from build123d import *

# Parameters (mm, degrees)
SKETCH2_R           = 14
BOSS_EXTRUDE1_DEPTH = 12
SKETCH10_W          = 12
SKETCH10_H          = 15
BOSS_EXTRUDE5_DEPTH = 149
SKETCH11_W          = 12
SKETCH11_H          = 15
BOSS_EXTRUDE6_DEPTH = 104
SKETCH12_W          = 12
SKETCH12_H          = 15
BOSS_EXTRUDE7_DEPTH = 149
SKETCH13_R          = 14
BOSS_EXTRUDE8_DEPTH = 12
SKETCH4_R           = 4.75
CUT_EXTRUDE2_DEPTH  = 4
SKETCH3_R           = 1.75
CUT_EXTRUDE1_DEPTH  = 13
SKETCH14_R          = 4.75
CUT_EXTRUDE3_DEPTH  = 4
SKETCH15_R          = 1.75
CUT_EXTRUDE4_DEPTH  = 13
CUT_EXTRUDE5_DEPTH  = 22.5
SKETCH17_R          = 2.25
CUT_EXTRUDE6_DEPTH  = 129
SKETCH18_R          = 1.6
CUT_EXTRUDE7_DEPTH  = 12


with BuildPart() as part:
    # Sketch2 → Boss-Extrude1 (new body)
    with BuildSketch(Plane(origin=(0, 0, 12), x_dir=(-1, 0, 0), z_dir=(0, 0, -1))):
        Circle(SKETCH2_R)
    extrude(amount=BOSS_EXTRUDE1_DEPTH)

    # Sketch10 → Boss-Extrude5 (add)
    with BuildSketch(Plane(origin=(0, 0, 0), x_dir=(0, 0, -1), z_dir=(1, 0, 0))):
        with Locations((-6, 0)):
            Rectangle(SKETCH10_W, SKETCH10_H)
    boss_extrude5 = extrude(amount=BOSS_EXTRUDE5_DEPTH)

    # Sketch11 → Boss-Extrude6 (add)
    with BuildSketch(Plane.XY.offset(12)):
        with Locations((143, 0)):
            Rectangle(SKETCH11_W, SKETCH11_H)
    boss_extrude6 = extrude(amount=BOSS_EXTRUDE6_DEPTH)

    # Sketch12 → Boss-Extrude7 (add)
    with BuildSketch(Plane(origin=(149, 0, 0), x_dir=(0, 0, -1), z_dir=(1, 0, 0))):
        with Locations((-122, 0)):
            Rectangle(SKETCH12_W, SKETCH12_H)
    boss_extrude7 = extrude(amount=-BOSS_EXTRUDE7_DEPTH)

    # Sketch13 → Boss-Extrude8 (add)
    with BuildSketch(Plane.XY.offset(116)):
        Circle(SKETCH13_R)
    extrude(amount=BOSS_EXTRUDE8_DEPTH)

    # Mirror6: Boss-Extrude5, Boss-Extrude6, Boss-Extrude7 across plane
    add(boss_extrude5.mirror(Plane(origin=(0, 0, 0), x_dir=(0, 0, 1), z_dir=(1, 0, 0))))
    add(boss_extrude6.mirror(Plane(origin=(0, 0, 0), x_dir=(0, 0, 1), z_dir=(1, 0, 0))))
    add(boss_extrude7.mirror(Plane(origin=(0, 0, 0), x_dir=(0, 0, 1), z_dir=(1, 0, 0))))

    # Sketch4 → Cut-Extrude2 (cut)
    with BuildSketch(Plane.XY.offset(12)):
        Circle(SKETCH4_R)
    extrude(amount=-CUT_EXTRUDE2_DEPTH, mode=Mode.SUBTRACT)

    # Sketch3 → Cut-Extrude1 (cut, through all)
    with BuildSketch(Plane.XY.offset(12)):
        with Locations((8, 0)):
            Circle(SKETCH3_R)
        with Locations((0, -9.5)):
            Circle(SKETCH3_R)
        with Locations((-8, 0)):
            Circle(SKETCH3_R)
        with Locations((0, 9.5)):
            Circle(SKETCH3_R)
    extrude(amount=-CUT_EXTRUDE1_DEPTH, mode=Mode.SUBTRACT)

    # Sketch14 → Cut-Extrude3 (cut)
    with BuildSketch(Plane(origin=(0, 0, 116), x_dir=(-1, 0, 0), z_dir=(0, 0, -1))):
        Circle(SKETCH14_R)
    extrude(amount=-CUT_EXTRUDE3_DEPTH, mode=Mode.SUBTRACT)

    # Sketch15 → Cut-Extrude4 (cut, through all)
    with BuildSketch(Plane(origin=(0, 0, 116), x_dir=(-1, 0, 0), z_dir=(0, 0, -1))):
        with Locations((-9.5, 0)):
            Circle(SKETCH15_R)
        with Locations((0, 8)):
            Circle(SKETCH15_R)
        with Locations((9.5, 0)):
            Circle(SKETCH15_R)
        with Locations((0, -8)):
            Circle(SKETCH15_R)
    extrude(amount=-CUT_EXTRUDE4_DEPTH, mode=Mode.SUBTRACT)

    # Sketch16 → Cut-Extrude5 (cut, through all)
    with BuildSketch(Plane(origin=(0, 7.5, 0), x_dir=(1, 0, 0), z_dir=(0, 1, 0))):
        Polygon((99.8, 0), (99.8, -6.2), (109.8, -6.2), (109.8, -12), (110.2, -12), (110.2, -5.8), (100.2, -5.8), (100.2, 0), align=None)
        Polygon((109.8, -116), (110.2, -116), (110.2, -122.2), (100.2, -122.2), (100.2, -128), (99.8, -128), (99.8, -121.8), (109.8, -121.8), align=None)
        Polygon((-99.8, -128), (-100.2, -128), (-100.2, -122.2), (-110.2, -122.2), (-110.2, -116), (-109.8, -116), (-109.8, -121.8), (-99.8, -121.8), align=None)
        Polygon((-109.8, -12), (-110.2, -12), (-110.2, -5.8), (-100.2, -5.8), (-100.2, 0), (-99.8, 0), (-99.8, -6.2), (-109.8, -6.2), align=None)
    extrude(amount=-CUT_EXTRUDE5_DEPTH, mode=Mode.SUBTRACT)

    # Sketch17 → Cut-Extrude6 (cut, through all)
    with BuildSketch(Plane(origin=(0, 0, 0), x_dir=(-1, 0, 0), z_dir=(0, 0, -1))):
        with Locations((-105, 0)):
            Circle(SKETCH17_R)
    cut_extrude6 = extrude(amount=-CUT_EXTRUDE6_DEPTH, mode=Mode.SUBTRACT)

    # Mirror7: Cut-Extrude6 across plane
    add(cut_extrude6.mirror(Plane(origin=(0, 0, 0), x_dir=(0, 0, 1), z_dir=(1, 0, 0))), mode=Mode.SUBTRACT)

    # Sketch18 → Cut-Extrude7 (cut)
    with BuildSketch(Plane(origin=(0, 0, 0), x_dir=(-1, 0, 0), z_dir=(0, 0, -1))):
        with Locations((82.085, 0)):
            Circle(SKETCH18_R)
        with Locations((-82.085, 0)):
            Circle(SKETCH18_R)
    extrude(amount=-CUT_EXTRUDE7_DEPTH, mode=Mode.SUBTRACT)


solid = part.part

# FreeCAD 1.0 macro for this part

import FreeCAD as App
import Part
import Sketcher

V = App.Vector

doc = App.newDocument("Part")
body = doc.addObject("PartDesign::Body", "Body")
body.AllowCompound = True

sketch1 = body.newObject("Sketcher::SketchObject", "Sketch")
sketch1.AttachmentSupport = (doc.getObject("XY_Plane"), [""])
sketch1.MapMode = "FlatFace"
sketch1.AttachmentOffset = App.Placement(V(0, 0, 12), App.Rotation())
sketch1.addGeometry(Part.Circle(V(0, 0, 0), V(0, 0, 1), 14), False)
sketch1.addConstraint(Sketcher.Constraint("Coincident", 0, 3, -1, 1))
sketch1.addConstraint(Sketcher.Constraint("Diameter", 0, 28.0))
pad1 = body.newObject("PartDesign::Pad", "Pad")
pad1.Profile = sketch1
pad1.Length = 12
pad1.Reversed = True

sketch2 = body.newObject("Sketcher::SketchObject", "Sketch001")
sketch2.AttachmentSupport = (doc.getObject("YZ_Plane"), [""])
sketch2.MapMode = "FlatFace"
sketch2.addGeometry(Part.LineSegment(V(8, 12, 0), V(-8, 12, 0)), False)
sketch2.addGeometry(Part.LineSegment(V(-8, 12, 0), V(-8, 0, 0)), False)
sketch2.addGeometry(Part.LineSegment(V(-8, 0, 0), V(8, 0, 0)), False)
sketch2.addGeometry(Part.LineSegment(V(8, 0, 0), V(8, 12, 0)), False)
sketch2.addConstraint(Sketcher.Constraint("Coincident", 0, 2, 1, 1))
sketch2.addConstraint(Sketcher.Constraint("Coincident", 1, 2, 2, 1))
sketch2.addConstraint(Sketcher.Constraint("Coincident", 2, 2, 3, 1))
sketch2.addConstraint(Sketcher.Constraint("Coincident", 3, 2, 0, 1))
sketch2.addConstraint(Sketcher.Constraint("Horizontal", 0))
sketch2.addConstraint(Sketcher.Constraint("Vertical", 1))
sketch2.addConstraint(Sketcher.Constraint("Horizontal", 2))
sketch2.addConstraint(Sketcher.Constraint("Vertical", 3))
sketch2.addConstraint(Sketcher.Constraint("Symmetric", 1, 2, 2, 2, -1, 1))
sketch2.addConstraint(Sketcher.Constraint("DistanceX", 0, 2, 0, 1, 15.0))
sketch2.addConstraint(Sketcher.Constraint("DistanceY", 1, 2, 1, 1, 12.0))
pad2 = body.newObject("PartDesign::Pad", "Pad001")
pad2.Profile = sketch2
pad2.Length = 149

sketch3 = body.newObject("Sketcher::SketchObject", "Sketch002")
sketch3.AttachmentSupport = (doc.getObject("XY_Plane"), [""])
sketch3.MapMode = "FlatFace"
sketch3.AttachmentOffset = App.Placement(V(0, 0, 12), App.Rotation())
sketch3.addGeometry(Part.LineSegment(V(137, 8, 0), V(137, -8, 0)), False)
sketch3.addGeometry(Part.LineSegment(V(137, -8, 0), V(149, -8, 0)), False)
sketch3.addGeometry(Part.LineSegment(V(149, -8, 0), V(149, 8, 0)), False)
sketch3.addGeometry(Part.LineSegment(V(149, 8, 0), V(137, 8, 0)), False)
sketch3.addConstraint(Sketcher.Constraint("Coincident", 0, 2, 1, 1))
sketch3.addConstraint(Sketcher.Constraint("Coincident", 1, 2, 2, 1))
sketch3.addConstraint(Sketcher.Constraint("Coincident", 2, 2, 3, 1))
sketch3.addConstraint(Sketcher.Constraint("Coincident", 3, 2, 0, 1))
sketch3.addConstraint(Sketcher.Constraint("Vertical", 0))
sketch3.addConstraint(Sketcher.Constraint("Horizontal", 1))
sketch3.addConstraint(Sketcher.Constraint("Vertical", 2))
sketch3.addConstraint(Sketcher.Constraint("Horizontal", 3))
sketch3.addConstraint(Sketcher.Constraint("DistanceX", 1, 1, 1, 2, 12.0))
sketch3.addConstraint(Sketcher.Constraint("DistanceY", 0, 2, 0, 1, 15.0))
sketch3.addConstraint(Sketcher.Constraint("DistanceX", -1, 1, 0, 2, 137.0))
sketch3.addConstraint(Sketcher.Constraint("DistanceY", 0, 2, -1, 1, 7.5))
pad3 = body.newObject("PartDesign::Pad", "Pad002")
pad3.Profile = sketch3
pad3.Length = 104

sketch4 = body.newObject("Sketcher::SketchObject", "Sketch003")
sketch4.AttachmentSupport = (doc.getObject("YZ_Plane"), [""])
sketch4.MapMode = "FlatFace"
sketch4.AttachmentOffset = App.Placement(V(0, 0, 149), App.Rotation())
sketch4.addGeometry(Part.LineSegment(V(8, 128, 0), V(-8, 128, 0)), False)
sketch4.addGeometry(Part.LineSegment(V(-8, 128, 0), V(-8, 116, 0)), False)
sketch4.addGeometry(Part.LineSegment(V(-8, 116, 0), V(8, 116, 0)), False)
sketch4.addGeometry(Part.LineSegment(V(8, 116, 0), V(8, 128, 0)), False)
sketch4.addConstraint(Sketcher.Constraint("Coincident", 0, 2, 1, 1))
sketch4.addConstraint(Sketcher.Constraint("Coincident", 1, 2, 2, 1))
sketch4.addConstraint(Sketcher.Constraint("Coincident", 2, 2, 3, 1))
sketch4.addConstraint(Sketcher.Constraint("Coincident", 3, 2, 0, 1))
sketch4.addConstraint(Sketcher.Constraint("Horizontal", 0))
sketch4.addConstraint(Sketcher.Constraint("Vertical", 1))
sketch4.addConstraint(Sketcher.Constraint("Horizontal", 2))
sketch4.addConstraint(Sketcher.Constraint("Vertical", 3))
sketch4.addConstraint(Sketcher.Constraint("DistanceX", 0, 2, 0, 1, 15.0))
sketch4.addConstraint(Sketcher.Constraint("DistanceY", 1, 2, 1, 1, 12.0))
sketch4.addConstraint(Sketcher.Constraint("DistanceY", -1, 1, 0, 2, 128.0))
sketch4.addConstraint(Sketcher.Constraint("DistanceX", 0, 2, -1, 1, 7.5))
pad4 = body.newObject("PartDesign::Pad", "Pad003")
pad4.Profile = sketch4
pad4.Length = 149
pad4.Reversed = True

sketch5 = body.newObject("Sketcher::SketchObject", "Sketch004")
sketch5.AttachmentSupport = (doc.getObject("XY_Plane"), [""])
sketch5.MapMode = "FlatFace"
sketch5.AttachmentOffset = App.Placement(V(0, 0, 116), App.Rotation())
sketch5.addGeometry(Part.Circle(V(0, 0, 0), V(0, 0, 1), 14), False)
sketch5.addConstraint(Sketcher.Constraint("Coincident", 0, 3, -1, 1))
sketch5.addConstraint(Sketcher.Constraint("Diameter", 0, 28.0))
pad5 = body.newObject("PartDesign::Pad", "Pad004")
pad5.Profile = sketch5
pad5.Length = 12
doc.recompute()

mirrored = body.newObject("PartDesign::Mirrored", "Mirrored")
mirrored.Originals = [pad2, pad3, pad4]
mirrored.MirrorPlane = (doc.getObject("YZ_Plane"), [""])
body.Tip = mirrored

sketch6 = body.newObject("Sketcher::SketchObject", "Sketch005")
sketch6.AttachmentSupport = (doc.getObject("XY_Plane"), [""])
sketch6.MapMode = "FlatFace"
sketch6.AttachmentOffset = App.Placement(V(0, 0, 12), App.Rotation())
sketch6.addGeometry(Part.Circle(V(0, 0, 0), V(0, 0, 1), 4.8), False)
sketch6.addConstraint(Sketcher.Constraint("Coincident", 0, 3, -1, 1))
sketch6.addConstraint(Sketcher.Constraint("Diameter", 0, 9.5))
pocket1 = body.newObject("PartDesign::Pocket", "Pocket")
pocket1.Profile = sketch6
pocket1.Length = 4

sketch7 = body.newObject("Sketcher::SketchObject", "Sketch006")
sketch7.AttachmentSupport = (doc.getObject("XY_Plane"), [""])
sketch7.MapMode = "FlatFace"
sketch7.AttachmentOffset = App.Placement(V(0, 0, 12), App.Rotation())
sketch7.addGeometry(Part.Circle(V(8, 0, 0), V(0, 0, 1), 1.8), False)
sketch7.addGeometry(Part.Circle(V(0, -9.5, 0), V(0, 0, 1), 1.8), False)
sketch7.addGeometry(Part.Circle(V(-8, 0, 0), V(0, 0, 1), 1.8), False)
sketch7.addGeometry(Part.Circle(V(0, 9.5, 0), V(0, 0, 1), 1.8), False)
sketch7.addConstraint(Sketcher.Constraint("Equal", 0, 1))
sketch7.addConstraint(Sketcher.Constraint("Equal", 1, 2))
sketch7.addConstraint(Sketcher.Constraint("Equal", 2, 3))
sketch7.addConstraint(Sketcher.Constraint("Symmetric", 0, 3, 2, 3, -1, 1))
sketch7.addConstraint(Sketcher.Constraint("Symmetric", 1, 3, 3, 3, -1, 1))
sketch7.addConstraint(Sketcher.Constraint("PointOnObject", 0, 3, -1))
sketch7.addConstraint(Sketcher.Constraint("PointOnObject", 1, 3, -2))
sketch7.addConstraint(Sketcher.Constraint("Diameter", 0, 3.5))
sketch7.addConstraint(Sketcher.Constraint("DistanceX", -1, 1, 0, 3, 8.0))
sketch7.addConstraint(Sketcher.Constraint("DistanceY", 1, 3, 3, 3, 19.0))
pocket2 = body.newObject("PartDesign::Pocket", "Pocket001")
pocket2.Profile = sketch7
pocket2.Type = "ThroughAll"

sketch8 = body.newObject("Sketcher::SketchObject", "Sketch007")
sketch8.AttachmentSupport = (doc.getObject("XY_Plane"), [""])
sketch8.MapMode = "FlatFace"
sketch8.AttachmentOffset = App.Placement(V(0, 0, 116), App.Rotation())
sketch8.addGeometry(Part.Circle(V(0, 0, 0), V(0, 0, 1), 4.8), False)
sketch8.addConstraint(Sketcher.Constraint("Coincident", 0, 3, -1, 1))
sketch8.addConstraint(Sketcher.Constraint("Diameter", 0, 9.5))
pocket3 = body.newObject("PartDesign::Pocket", "Pocket002")
pocket3.Profile = sketch8
pocket3.Length = 4
pocket3.Reversed = True

sketch9 = body.newObject("Sketcher::SketchObject", "Sketch008")
sketch9.AttachmentSupport = (doc.getObject("XY_Plane"), [""])
sketch9.MapMode = "FlatFace"
sketch9.AttachmentOffset = App.Placement(V(0, 0, 116), App.Rotation())
sketch9.addGeometry(Part.Circle(V(9.5, 0, 0), V(0, 0, 1), 1.8), False)
sketch9.addGeometry(Part.Circle(V(0, 8, 0), V(0, 0, 1), 1.8), False)
sketch9.addGeometry(Part.Circle(V(-9.5, 0, 0), V(0, 0, 1), 1.8), False)
sketch9.addGeometry(Part.Circle(V(0, -8, 0), V(0, 0, 1), 1.8), False)
sketch9.addConstraint(Sketcher.Constraint("Equal", 0, 1))
sketch9.addConstraint(Sketcher.Constraint("Equal", 1, 2))
sketch9.addConstraint(Sketcher.Constraint("Equal", 2, 3))
sketch9.addConstraint(Sketcher.Constraint("Symmetric", 0, 3, 2, 3, -1, 1))
sketch9.addConstraint(Sketcher.Constraint("Symmetric", 1, 3, 3, 3, -1, 1))
sketch9.addConstraint(Sketcher.Constraint("PointOnObject", 0, 3, -1))
sketch9.addConstraint(Sketcher.Constraint("PointOnObject", 1, 3, -2))
sketch9.addConstraint(Sketcher.Constraint("Diameter", 0, 3.5))
sketch9.addConstraint(Sketcher.Constraint("DistanceY", -1, 1, 1, 3, 8.0))
sketch9.addConstraint(Sketcher.Constraint("DistanceX", 2, 3, 0, 3, 19.0))
pocket4 = body.newObject("PartDesign::Pocket", "Pocket003")
pocket4.Profile = sketch9
pocket4.Type = "ThroughAll"
pocket4.Reversed = True

sketch10 = body.newObject("Sketcher::SketchObject", "Sketch009")
sketch10.AttachmentSupport = (doc.getObject("XZ_Plane"), [""])
sketch10.MapMode = "FlatFace"
sketch10.AttachmentOffset = App.Placement(V(0, 0, -7.5), App.Rotation())
sketch10.addGeometry(Part.LineSegment(V(99.8, 0, 0), V(99.8, 6.2, 0)), False)
sketch10.addGeometry(Part.LineSegment(V(99.8, 6.2, 0), V(109.8, 6.2, 0)), False)
sketch10.addGeometry(Part.LineSegment(V(109.8, 6.2, 0), V(109.8, 12, 0)), False)
sketch10.addGeometry(Part.LineSegment(V(109.8, 12, 0), V(110.2, 12, 0)), False)
sketch10.addGeometry(Part.LineSegment(V(110.2, 12, 0), V(110.2, 5.8, 0)), False)
sketch10.addGeometry(Part.LineSegment(V(110.2, 5.8, 0), V(100.2, 5.8, 0)), False)
sketch10.addGeometry(Part.LineSegment(V(100.2, 5.8, 0), V(100.2, 0, 0)), False)
sketch10.addGeometry(Part.LineSegment(V(100.2, 0, 0), V(99.8, 0, 0)), False)
sketch10.addGeometry(Part.LineSegment(V(110.2, 116, 0), V(109.8, 116, 0)), False)
sketch10.addGeometry(Part.LineSegment(V(109.8, 116, 0), V(109.8, 121.8, 0)), False)
sketch10.addGeometry(Part.LineSegment(V(109.8, 121.8, 0), V(99.8, 121.8, 0)), False)
sketch10.addGeometry(Part.LineSegment(V(99.8, 121.8, 0), V(99.8, 128, 0)), False)
sketch10.addGeometry(Part.LineSegment(V(99.8, 128, 0), V(100.2, 128, 0)), False)
sketch10.addGeometry(Part.LineSegment(V(100.2, 128, 0), V(100.2, 122.2, 0)), False)
sketch10.addGeometry(Part.LineSegment(V(100.2, 122.2, 0), V(110.2, 122.2, 0)), False)
sketch10.addGeometry(Part.LineSegment(V(110.2, 122.2, 0), V(110.2, 116, 0)), False)
sketch10.addGeometry(Part.LineSegment(V(-100.2, 128, 0), V(-99.8, 128, 0)), False)
sketch10.addGeometry(Part.LineSegment(V(-99.8, 128, 0), V(-99.8, 121.8, 0)), False)
sketch10.addGeometry(Part.LineSegment(V(-99.8, 121.8, 0), V(-109.8, 121.8, 0)), False)
sketch10.addGeometry(Part.LineSegment(V(-109.8, 121.8, 0), V(-109.8, 116, 0)), False)
sketch10.addGeometry(Part.LineSegment(V(-109.8, 116, 0), V(-110.2, 116, 0)), False)
sketch10.addGeometry(Part.LineSegment(V(-110.2, 116, 0), V(-110.2, 122.2, 0)), False)
sketch10.addGeometry(Part.LineSegment(V(-110.2, 122.2, 0), V(-100.2, 122.2, 0)), False)
sketch10.addGeometry(Part.LineSegment(V(-100.2, 122.2, 0), V(-100.2, 128, 0)), False)
sketch10.addGeometry(Part.LineSegment(V(-110.2, 12, 0), V(-109.8, 12, 0)), False)
sketch10.addGeometry(Part.LineSegment(V(-109.8, 12, 0), V(-109.8, 6.2, 0)), False)
sketch10.addGeometry(Part.LineSegment(V(-109.8, 6.2, 0), V(-99.8, 6.2, 0)), False)
sketch10.addGeometry(Part.LineSegment(V(-99.8, 6.2, 0), V(-99.8, 0, 0)), False)
sketch10.addGeometry(Part.LineSegment(V(-99.8, 0, 0), V(-100.2, 0, 0)), False)
sketch10.addGeometry(Part.LineSegment(V(-100.2, 0, 0), V(-100.2, 5.8, 0)), False)
sketch10.addGeometry(Part.LineSegment(V(-100.2, 5.8, 0), V(-110.2, 5.8, 0)), False)
sketch10.addGeometry(Part.LineSegment(V(-110.2, 5.8, 0), V(-110.2, 12, 0)), False)
sketch10.addConstraint(Sketcher.Constraint("Coincident", 0, 2, 1, 1))
sketch10.addConstraint(Sketcher.Constraint("Coincident", 1, 2, 2, 1))
sketch10.addConstraint(Sketcher.Constraint("Coincident", 2, 2, 3, 1))
sketch10.addConstraint(Sketcher.Constraint("Coincident", 3, 2, 4, 1))
sketch10.addConstraint(Sketcher.Constraint("Coincident", 4, 2, 5, 1))
sketch10.addConstraint(Sketcher.Constraint("Coincident", 5, 2, 6, 1))
sketch10.addConstraint(Sketcher.Constraint("Coincident", 6, 2, 7, 1))
sketch10.addConstraint(Sketcher.Constraint("Coincident", 7, 2, 0, 1))
sketch10.addConstraint(Sketcher.Constraint("Coincident", 8, 2, 9, 1))
sketch10.addConstraint(Sketcher.Constraint("Coincident", 9, 2, 10, 1))
sketch10.addConstraint(Sketcher.Constraint("Coincident", 10, 2, 11, 1))
sketch10.addConstraint(Sketcher.Constraint("Coincident", 11, 2, 12, 1))
sketch10.addConstraint(Sketcher.Constraint("Coincident", 12, 2, 13, 1))
sketch10.addConstraint(Sketcher.Constraint("Coincident", 13, 2, 14, 1))
sketch10.addConstraint(Sketcher.Constraint("Coincident", 14, 2, 15, 1))
sketch10.addConstraint(Sketcher.Constraint("Coincident", 15, 2, 8, 1))
sketch10.addConstraint(Sketcher.Constraint("Coincident", 16, 2, 17, 1))
sketch10.addConstraint(Sketcher.Constraint("Coincident", 17, 2, 18, 1))
sketch10.addConstraint(Sketcher.Constraint("Coincident", 18, 2, 19, 1))
sketch10.addConstraint(Sketcher.Constraint("Coincident", 19, 2, 20, 1))
sketch10.addConstraint(Sketcher.Constraint("Coincident", 20, 2, 21, 1))
sketch10.addConstraint(Sketcher.Constraint("Coincident", 21, 2, 22, 1))
sketch10.addConstraint(Sketcher.Constraint("Coincident", 22, 2, 23, 1))
sketch10.addConstraint(Sketcher.Constraint("Coincident", 23, 2, 16, 1))
sketch10.addConstraint(Sketcher.Constraint("Coincident", 24, 2, 25, 1))
sketch10.addConstraint(Sketcher.Constraint("Coincident", 25, 2, 26, 1))
sketch10.addConstraint(Sketcher.Constraint("Coincident", 26, 2, 27, 1))
sketch10.addConstraint(Sketcher.Constraint("Coincident", 27, 2, 28, 1))
sketch10.addConstraint(Sketcher.Constraint("Coincident", 28, 2, 29, 1))
sketch10.addConstraint(Sketcher.Constraint("Coincident", 29, 2, 30, 1))
sketch10.addConstraint(Sketcher.Constraint("Coincident", 30, 2, 31, 1))
sketch10.addConstraint(Sketcher.Constraint("Coincident", 31, 2, 24, 1))
sketch10.addConstraint(Sketcher.Constraint("Vertical", 0))
sketch10.addConstraint(Sketcher.Constraint("Horizontal", 1))
sketch10.addConstraint(Sketcher.Constraint("Vertical", 2))
sketch10.addConstraint(Sketcher.Constraint("Horizontal", 3))
sketch10.addConstraint(Sketcher.Constraint("Vertical", 4))
sketch10.addConstraint(Sketcher.Constraint("Horizontal", 5))
sketch10.addConstraint(Sketcher.Constraint("Vertical", 6))
sketch10.addConstraint(Sketcher.Constraint("Horizontal", 7))
sketch10.addConstraint(Sketcher.Constraint("Horizontal", 8))
sketch10.addConstraint(Sketcher.Constraint("Vertical", 9))
sketch10.addConstraint(Sketcher.Constraint("Horizontal", 10))
sketch10.addConstraint(Sketcher.Constraint("Vertical", 11))
sketch10.addConstraint(Sketcher.Constraint("Horizontal", 12))
sketch10.addConstraint(Sketcher.Constraint("Vertical", 13))
sketch10.addConstraint(Sketcher.Constraint("Horizontal", 14))
sketch10.addConstraint(Sketcher.Constraint("Vertical", 15))
sketch10.addConstraint(Sketcher.Constraint("Horizontal", 16))
sketch10.addConstraint(Sketcher.Constraint("Vertical", 17))
sketch10.addConstraint(Sketcher.Constraint("Horizontal", 18))
sketch10.addConstraint(Sketcher.Constraint("Vertical", 19))
sketch10.addConstraint(Sketcher.Constraint("Horizontal", 20))
sketch10.addConstraint(Sketcher.Constraint("Vertical", 21))
sketch10.addConstraint(Sketcher.Constraint("Horizontal", 22))
sketch10.addConstraint(Sketcher.Constraint("Vertical", 23))
sketch10.addConstraint(Sketcher.Constraint("Horizontal", 24))
sketch10.addConstraint(Sketcher.Constraint("Vertical", 25))
sketch10.addConstraint(Sketcher.Constraint("Horizontal", 26))
sketch10.addConstraint(Sketcher.Constraint("Vertical", 27))
sketch10.addConstraint(Sketcher.Constraint("Horizontal", 28))
sketch10.addConstraint(Sketcher.Constraint("Vertical", 29))
sketch10.addConstraint(Sketcher.Constraint("Horizontal", 30))
sketch10.addConstraint(Sketcher.Constraint("Vertical", 31))
sketch10.addConstraint(Sketcher.Constraint("Symmetric", 7, 2, 27, 2, -1, 1))
sketch10.addConstraint(Sketcher.Constraint("Symmetric", 11, 2, 16, 2, -2))
sketch10.addConstraint(Sketcher.Constraint("Symmetric", 9, 2, 18, 2, -2))
sketch10.addConstraint(Sketcher.Constraint("Symmetric", 15, 2, 20, 2, -2))
sketch10.addConstraint(Sketcher.Constraint("Symmetric", 13, 2, 22, 2, -2))
sketch10.addConstraint(Sketcher.Constraint("Symmetric", 2, 2, 24, 2, -2))
sketch10.addConstraint(Sketcher.Constraint("Symmetric", 6, 2, 28, 2, -2))
sketch10.addConstraint(Sketcher.Constraint("Symmetric", 4, 2, 30, 2, -2))
sketch10.addConstraint(Sketcher.Constraint("Horizontal", 1, 2, 25, 2))
sketch10.addConstraint(Sketcher.Constraint("Vertical", 2, 2, 8, 2))
sketch10.addConstraint(Sketcher.Constraint("Vertical", 7, 2, 10, 2))
sketch10.addConstraint(Sketcher.Constraint("Vertical", 6, 2, 12, 2))
sketch10.addConstraint(Sketcher.Constraint("Vertical", 4, 2, 14, 2))
sketch10.addConstraint(Sketcher.Constraint("Equal", 1, 5))
sketch10.addConstraint(Sketcher.Constraint("Equal", 0, 4))
sketch10.addConstraint(Sketcher.Constraint("Equal", 6, 9))
sketch10.addConstraint(Sketcher.Constraint("Equal", 4, 11))
sketch10.addConstraint(Sketcher.Constraint("Equal", 9, 13))
sketch10.addConstraint(Sketcher.Constraint("DistanceX", 1, 1, 1, 2, 10.0))
sketch10.addConstraint(Sketcher.Constraint("DistanceX", 3, 1, 3, 2, 0.4))
sketch10.addConstraint(Sketcher.Constraint("DistanceY", 0, 1, 0, 2, 6.2))
sketch10.addConstraint(Sketcher.Constraint("DistanceY", 2, 1, 2, 2, 5.8))
sketch10.addConstraint(Sketcher.Constraint("DistanceY", -1, 1, 8, 2, 116.0))
sketch10.addConstraint(Sketcher.Constraint("DistanceX", 16, 2, 12, 2, 200.0))
pocket5 = body.newObject("PartDesign::Pocket", "Pocket004")
pocket5.Profile = sketch10
pocket5.Type = "ThroughAll"
pocket5.Reversed = True

sketch11 = body.newObject("Sketcher::SketchObject", "Sketch010")
sketch11.AttachmentSupport = (doc.getObject("XY_Plane"), [""])
sketch11.MapMode = "FlatFace"
sketch11.addGeometry(Part.Circle(V(105, 0, 0), V(0, 0, 1), 2.2), False)
sketch11.addConstraint(Sketcher.Constraint("PointOnObject", 0, 3, -1))
sketch11.addConstraint(Sketcher.Constraint("Diameter", 0, 4.5))
sketch11.addConstraint(Sketcher.Constraint("DistanceX", -1, 1, 0, 3, 105.0))
pocket6 = body.newObject("PartDesign::Pocket", "Pocket005")
pocket6.Profile = sketch11
pocket6.Type = "ThroughAll"
pocket6.Reversed = True
doc.recompute()

mirrored2 = body.newObject("PartDesign::Mirrored", "Mirrored001")
mirrored2.Originals = [pocket6]
mirrored2.MirrorPlane = (doc.getObject("YZ_Plane"), [""])
body.Tip = mirrored2

sketch12 = body.newObject("Sketcher::SketchObject", "Sketch011")
sketch12.AttachmentSupport = (doc.getObject("XY_Plane"), [""])
sketch12.MapMode = "FlatFace"
sketch12.addGeometry(Part.Circle(V(-82.1, 0, 0), V(0, 0, 1), 1.6), False)
sketch12.addGeometry(Part.Circle(V(82.1, 0, 0), V(0, 0, 1), 1.6), False)
sketch12.addConstraint(Sketcher.Constraint("Equal", 0, 1))
sketch12.addConstraint(Sketcher.Constraint("Symmetric", 0, 3, 1, 3, -1, 1))
sketch12.addConstraint(Sketcher.Constraint("PointOnObject", 0, 3, -1))
sketch12.addConstraint(Sketcher.Constraint("Diameter", 0, 3.2))
sketch12.addConstraint(Sketcher.Constraint("DistanceX", 0, 3, 1, 3, 164.17))
pocket7 = body.newObject("PartDesign::Pocket", "Pocket006")
pocket7.Profile = sketch12
pocket7.Length = 12
pocket7.Reversed = True

doc.recompute()
